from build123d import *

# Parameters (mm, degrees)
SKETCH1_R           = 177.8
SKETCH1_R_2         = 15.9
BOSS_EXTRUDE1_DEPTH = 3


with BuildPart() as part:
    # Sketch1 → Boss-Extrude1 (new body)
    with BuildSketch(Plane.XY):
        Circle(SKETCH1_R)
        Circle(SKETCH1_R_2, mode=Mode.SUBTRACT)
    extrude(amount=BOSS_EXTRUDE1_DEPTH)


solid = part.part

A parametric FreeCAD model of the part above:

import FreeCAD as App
import Part
import Sketcher
Q = App.Units.Quantity

doc = App.newDocument("Part")
body = doc.addObject("PartDesign::Body", "Body")

sketch1 = body.newObject("Sketcher::SketchObject", "Sketch")
sketch1.AttachmentSupport = (doc.getObject("XY_Plane"), [""])
sketch1.MapMode = "FlatFace"
sketch1.addGeometry(Part.Circle(App.Vector(0, 0, 0), App.Vector(0, 0, 1), 177.8), False)
sketch1.addGeometry(Part.Circle(App.Vector(0, 0, 0), App.Vector(0, 0, 1), 15.9), False)
sketch1.addConstraint(Sketcher.Constraint("Coincident", 0, 3, -1, 1))
sketch1.addConstraint(Sketcher.Constraint("Coincident", 1, 3, -1, 1))
sketch1.addConstraint(Sketcher.Constraint("Diameter", 0, Q("355.6 mm")))
sketch1.addConstraint(Sketcher.Constraint("Diameter", 1, Q("31.8 mm")))
pad1 = body.newObject("PartDesign::Pad", "Pad")
pad1.Profile = sketch1
pad1.Length = 3

doc.recompute()
